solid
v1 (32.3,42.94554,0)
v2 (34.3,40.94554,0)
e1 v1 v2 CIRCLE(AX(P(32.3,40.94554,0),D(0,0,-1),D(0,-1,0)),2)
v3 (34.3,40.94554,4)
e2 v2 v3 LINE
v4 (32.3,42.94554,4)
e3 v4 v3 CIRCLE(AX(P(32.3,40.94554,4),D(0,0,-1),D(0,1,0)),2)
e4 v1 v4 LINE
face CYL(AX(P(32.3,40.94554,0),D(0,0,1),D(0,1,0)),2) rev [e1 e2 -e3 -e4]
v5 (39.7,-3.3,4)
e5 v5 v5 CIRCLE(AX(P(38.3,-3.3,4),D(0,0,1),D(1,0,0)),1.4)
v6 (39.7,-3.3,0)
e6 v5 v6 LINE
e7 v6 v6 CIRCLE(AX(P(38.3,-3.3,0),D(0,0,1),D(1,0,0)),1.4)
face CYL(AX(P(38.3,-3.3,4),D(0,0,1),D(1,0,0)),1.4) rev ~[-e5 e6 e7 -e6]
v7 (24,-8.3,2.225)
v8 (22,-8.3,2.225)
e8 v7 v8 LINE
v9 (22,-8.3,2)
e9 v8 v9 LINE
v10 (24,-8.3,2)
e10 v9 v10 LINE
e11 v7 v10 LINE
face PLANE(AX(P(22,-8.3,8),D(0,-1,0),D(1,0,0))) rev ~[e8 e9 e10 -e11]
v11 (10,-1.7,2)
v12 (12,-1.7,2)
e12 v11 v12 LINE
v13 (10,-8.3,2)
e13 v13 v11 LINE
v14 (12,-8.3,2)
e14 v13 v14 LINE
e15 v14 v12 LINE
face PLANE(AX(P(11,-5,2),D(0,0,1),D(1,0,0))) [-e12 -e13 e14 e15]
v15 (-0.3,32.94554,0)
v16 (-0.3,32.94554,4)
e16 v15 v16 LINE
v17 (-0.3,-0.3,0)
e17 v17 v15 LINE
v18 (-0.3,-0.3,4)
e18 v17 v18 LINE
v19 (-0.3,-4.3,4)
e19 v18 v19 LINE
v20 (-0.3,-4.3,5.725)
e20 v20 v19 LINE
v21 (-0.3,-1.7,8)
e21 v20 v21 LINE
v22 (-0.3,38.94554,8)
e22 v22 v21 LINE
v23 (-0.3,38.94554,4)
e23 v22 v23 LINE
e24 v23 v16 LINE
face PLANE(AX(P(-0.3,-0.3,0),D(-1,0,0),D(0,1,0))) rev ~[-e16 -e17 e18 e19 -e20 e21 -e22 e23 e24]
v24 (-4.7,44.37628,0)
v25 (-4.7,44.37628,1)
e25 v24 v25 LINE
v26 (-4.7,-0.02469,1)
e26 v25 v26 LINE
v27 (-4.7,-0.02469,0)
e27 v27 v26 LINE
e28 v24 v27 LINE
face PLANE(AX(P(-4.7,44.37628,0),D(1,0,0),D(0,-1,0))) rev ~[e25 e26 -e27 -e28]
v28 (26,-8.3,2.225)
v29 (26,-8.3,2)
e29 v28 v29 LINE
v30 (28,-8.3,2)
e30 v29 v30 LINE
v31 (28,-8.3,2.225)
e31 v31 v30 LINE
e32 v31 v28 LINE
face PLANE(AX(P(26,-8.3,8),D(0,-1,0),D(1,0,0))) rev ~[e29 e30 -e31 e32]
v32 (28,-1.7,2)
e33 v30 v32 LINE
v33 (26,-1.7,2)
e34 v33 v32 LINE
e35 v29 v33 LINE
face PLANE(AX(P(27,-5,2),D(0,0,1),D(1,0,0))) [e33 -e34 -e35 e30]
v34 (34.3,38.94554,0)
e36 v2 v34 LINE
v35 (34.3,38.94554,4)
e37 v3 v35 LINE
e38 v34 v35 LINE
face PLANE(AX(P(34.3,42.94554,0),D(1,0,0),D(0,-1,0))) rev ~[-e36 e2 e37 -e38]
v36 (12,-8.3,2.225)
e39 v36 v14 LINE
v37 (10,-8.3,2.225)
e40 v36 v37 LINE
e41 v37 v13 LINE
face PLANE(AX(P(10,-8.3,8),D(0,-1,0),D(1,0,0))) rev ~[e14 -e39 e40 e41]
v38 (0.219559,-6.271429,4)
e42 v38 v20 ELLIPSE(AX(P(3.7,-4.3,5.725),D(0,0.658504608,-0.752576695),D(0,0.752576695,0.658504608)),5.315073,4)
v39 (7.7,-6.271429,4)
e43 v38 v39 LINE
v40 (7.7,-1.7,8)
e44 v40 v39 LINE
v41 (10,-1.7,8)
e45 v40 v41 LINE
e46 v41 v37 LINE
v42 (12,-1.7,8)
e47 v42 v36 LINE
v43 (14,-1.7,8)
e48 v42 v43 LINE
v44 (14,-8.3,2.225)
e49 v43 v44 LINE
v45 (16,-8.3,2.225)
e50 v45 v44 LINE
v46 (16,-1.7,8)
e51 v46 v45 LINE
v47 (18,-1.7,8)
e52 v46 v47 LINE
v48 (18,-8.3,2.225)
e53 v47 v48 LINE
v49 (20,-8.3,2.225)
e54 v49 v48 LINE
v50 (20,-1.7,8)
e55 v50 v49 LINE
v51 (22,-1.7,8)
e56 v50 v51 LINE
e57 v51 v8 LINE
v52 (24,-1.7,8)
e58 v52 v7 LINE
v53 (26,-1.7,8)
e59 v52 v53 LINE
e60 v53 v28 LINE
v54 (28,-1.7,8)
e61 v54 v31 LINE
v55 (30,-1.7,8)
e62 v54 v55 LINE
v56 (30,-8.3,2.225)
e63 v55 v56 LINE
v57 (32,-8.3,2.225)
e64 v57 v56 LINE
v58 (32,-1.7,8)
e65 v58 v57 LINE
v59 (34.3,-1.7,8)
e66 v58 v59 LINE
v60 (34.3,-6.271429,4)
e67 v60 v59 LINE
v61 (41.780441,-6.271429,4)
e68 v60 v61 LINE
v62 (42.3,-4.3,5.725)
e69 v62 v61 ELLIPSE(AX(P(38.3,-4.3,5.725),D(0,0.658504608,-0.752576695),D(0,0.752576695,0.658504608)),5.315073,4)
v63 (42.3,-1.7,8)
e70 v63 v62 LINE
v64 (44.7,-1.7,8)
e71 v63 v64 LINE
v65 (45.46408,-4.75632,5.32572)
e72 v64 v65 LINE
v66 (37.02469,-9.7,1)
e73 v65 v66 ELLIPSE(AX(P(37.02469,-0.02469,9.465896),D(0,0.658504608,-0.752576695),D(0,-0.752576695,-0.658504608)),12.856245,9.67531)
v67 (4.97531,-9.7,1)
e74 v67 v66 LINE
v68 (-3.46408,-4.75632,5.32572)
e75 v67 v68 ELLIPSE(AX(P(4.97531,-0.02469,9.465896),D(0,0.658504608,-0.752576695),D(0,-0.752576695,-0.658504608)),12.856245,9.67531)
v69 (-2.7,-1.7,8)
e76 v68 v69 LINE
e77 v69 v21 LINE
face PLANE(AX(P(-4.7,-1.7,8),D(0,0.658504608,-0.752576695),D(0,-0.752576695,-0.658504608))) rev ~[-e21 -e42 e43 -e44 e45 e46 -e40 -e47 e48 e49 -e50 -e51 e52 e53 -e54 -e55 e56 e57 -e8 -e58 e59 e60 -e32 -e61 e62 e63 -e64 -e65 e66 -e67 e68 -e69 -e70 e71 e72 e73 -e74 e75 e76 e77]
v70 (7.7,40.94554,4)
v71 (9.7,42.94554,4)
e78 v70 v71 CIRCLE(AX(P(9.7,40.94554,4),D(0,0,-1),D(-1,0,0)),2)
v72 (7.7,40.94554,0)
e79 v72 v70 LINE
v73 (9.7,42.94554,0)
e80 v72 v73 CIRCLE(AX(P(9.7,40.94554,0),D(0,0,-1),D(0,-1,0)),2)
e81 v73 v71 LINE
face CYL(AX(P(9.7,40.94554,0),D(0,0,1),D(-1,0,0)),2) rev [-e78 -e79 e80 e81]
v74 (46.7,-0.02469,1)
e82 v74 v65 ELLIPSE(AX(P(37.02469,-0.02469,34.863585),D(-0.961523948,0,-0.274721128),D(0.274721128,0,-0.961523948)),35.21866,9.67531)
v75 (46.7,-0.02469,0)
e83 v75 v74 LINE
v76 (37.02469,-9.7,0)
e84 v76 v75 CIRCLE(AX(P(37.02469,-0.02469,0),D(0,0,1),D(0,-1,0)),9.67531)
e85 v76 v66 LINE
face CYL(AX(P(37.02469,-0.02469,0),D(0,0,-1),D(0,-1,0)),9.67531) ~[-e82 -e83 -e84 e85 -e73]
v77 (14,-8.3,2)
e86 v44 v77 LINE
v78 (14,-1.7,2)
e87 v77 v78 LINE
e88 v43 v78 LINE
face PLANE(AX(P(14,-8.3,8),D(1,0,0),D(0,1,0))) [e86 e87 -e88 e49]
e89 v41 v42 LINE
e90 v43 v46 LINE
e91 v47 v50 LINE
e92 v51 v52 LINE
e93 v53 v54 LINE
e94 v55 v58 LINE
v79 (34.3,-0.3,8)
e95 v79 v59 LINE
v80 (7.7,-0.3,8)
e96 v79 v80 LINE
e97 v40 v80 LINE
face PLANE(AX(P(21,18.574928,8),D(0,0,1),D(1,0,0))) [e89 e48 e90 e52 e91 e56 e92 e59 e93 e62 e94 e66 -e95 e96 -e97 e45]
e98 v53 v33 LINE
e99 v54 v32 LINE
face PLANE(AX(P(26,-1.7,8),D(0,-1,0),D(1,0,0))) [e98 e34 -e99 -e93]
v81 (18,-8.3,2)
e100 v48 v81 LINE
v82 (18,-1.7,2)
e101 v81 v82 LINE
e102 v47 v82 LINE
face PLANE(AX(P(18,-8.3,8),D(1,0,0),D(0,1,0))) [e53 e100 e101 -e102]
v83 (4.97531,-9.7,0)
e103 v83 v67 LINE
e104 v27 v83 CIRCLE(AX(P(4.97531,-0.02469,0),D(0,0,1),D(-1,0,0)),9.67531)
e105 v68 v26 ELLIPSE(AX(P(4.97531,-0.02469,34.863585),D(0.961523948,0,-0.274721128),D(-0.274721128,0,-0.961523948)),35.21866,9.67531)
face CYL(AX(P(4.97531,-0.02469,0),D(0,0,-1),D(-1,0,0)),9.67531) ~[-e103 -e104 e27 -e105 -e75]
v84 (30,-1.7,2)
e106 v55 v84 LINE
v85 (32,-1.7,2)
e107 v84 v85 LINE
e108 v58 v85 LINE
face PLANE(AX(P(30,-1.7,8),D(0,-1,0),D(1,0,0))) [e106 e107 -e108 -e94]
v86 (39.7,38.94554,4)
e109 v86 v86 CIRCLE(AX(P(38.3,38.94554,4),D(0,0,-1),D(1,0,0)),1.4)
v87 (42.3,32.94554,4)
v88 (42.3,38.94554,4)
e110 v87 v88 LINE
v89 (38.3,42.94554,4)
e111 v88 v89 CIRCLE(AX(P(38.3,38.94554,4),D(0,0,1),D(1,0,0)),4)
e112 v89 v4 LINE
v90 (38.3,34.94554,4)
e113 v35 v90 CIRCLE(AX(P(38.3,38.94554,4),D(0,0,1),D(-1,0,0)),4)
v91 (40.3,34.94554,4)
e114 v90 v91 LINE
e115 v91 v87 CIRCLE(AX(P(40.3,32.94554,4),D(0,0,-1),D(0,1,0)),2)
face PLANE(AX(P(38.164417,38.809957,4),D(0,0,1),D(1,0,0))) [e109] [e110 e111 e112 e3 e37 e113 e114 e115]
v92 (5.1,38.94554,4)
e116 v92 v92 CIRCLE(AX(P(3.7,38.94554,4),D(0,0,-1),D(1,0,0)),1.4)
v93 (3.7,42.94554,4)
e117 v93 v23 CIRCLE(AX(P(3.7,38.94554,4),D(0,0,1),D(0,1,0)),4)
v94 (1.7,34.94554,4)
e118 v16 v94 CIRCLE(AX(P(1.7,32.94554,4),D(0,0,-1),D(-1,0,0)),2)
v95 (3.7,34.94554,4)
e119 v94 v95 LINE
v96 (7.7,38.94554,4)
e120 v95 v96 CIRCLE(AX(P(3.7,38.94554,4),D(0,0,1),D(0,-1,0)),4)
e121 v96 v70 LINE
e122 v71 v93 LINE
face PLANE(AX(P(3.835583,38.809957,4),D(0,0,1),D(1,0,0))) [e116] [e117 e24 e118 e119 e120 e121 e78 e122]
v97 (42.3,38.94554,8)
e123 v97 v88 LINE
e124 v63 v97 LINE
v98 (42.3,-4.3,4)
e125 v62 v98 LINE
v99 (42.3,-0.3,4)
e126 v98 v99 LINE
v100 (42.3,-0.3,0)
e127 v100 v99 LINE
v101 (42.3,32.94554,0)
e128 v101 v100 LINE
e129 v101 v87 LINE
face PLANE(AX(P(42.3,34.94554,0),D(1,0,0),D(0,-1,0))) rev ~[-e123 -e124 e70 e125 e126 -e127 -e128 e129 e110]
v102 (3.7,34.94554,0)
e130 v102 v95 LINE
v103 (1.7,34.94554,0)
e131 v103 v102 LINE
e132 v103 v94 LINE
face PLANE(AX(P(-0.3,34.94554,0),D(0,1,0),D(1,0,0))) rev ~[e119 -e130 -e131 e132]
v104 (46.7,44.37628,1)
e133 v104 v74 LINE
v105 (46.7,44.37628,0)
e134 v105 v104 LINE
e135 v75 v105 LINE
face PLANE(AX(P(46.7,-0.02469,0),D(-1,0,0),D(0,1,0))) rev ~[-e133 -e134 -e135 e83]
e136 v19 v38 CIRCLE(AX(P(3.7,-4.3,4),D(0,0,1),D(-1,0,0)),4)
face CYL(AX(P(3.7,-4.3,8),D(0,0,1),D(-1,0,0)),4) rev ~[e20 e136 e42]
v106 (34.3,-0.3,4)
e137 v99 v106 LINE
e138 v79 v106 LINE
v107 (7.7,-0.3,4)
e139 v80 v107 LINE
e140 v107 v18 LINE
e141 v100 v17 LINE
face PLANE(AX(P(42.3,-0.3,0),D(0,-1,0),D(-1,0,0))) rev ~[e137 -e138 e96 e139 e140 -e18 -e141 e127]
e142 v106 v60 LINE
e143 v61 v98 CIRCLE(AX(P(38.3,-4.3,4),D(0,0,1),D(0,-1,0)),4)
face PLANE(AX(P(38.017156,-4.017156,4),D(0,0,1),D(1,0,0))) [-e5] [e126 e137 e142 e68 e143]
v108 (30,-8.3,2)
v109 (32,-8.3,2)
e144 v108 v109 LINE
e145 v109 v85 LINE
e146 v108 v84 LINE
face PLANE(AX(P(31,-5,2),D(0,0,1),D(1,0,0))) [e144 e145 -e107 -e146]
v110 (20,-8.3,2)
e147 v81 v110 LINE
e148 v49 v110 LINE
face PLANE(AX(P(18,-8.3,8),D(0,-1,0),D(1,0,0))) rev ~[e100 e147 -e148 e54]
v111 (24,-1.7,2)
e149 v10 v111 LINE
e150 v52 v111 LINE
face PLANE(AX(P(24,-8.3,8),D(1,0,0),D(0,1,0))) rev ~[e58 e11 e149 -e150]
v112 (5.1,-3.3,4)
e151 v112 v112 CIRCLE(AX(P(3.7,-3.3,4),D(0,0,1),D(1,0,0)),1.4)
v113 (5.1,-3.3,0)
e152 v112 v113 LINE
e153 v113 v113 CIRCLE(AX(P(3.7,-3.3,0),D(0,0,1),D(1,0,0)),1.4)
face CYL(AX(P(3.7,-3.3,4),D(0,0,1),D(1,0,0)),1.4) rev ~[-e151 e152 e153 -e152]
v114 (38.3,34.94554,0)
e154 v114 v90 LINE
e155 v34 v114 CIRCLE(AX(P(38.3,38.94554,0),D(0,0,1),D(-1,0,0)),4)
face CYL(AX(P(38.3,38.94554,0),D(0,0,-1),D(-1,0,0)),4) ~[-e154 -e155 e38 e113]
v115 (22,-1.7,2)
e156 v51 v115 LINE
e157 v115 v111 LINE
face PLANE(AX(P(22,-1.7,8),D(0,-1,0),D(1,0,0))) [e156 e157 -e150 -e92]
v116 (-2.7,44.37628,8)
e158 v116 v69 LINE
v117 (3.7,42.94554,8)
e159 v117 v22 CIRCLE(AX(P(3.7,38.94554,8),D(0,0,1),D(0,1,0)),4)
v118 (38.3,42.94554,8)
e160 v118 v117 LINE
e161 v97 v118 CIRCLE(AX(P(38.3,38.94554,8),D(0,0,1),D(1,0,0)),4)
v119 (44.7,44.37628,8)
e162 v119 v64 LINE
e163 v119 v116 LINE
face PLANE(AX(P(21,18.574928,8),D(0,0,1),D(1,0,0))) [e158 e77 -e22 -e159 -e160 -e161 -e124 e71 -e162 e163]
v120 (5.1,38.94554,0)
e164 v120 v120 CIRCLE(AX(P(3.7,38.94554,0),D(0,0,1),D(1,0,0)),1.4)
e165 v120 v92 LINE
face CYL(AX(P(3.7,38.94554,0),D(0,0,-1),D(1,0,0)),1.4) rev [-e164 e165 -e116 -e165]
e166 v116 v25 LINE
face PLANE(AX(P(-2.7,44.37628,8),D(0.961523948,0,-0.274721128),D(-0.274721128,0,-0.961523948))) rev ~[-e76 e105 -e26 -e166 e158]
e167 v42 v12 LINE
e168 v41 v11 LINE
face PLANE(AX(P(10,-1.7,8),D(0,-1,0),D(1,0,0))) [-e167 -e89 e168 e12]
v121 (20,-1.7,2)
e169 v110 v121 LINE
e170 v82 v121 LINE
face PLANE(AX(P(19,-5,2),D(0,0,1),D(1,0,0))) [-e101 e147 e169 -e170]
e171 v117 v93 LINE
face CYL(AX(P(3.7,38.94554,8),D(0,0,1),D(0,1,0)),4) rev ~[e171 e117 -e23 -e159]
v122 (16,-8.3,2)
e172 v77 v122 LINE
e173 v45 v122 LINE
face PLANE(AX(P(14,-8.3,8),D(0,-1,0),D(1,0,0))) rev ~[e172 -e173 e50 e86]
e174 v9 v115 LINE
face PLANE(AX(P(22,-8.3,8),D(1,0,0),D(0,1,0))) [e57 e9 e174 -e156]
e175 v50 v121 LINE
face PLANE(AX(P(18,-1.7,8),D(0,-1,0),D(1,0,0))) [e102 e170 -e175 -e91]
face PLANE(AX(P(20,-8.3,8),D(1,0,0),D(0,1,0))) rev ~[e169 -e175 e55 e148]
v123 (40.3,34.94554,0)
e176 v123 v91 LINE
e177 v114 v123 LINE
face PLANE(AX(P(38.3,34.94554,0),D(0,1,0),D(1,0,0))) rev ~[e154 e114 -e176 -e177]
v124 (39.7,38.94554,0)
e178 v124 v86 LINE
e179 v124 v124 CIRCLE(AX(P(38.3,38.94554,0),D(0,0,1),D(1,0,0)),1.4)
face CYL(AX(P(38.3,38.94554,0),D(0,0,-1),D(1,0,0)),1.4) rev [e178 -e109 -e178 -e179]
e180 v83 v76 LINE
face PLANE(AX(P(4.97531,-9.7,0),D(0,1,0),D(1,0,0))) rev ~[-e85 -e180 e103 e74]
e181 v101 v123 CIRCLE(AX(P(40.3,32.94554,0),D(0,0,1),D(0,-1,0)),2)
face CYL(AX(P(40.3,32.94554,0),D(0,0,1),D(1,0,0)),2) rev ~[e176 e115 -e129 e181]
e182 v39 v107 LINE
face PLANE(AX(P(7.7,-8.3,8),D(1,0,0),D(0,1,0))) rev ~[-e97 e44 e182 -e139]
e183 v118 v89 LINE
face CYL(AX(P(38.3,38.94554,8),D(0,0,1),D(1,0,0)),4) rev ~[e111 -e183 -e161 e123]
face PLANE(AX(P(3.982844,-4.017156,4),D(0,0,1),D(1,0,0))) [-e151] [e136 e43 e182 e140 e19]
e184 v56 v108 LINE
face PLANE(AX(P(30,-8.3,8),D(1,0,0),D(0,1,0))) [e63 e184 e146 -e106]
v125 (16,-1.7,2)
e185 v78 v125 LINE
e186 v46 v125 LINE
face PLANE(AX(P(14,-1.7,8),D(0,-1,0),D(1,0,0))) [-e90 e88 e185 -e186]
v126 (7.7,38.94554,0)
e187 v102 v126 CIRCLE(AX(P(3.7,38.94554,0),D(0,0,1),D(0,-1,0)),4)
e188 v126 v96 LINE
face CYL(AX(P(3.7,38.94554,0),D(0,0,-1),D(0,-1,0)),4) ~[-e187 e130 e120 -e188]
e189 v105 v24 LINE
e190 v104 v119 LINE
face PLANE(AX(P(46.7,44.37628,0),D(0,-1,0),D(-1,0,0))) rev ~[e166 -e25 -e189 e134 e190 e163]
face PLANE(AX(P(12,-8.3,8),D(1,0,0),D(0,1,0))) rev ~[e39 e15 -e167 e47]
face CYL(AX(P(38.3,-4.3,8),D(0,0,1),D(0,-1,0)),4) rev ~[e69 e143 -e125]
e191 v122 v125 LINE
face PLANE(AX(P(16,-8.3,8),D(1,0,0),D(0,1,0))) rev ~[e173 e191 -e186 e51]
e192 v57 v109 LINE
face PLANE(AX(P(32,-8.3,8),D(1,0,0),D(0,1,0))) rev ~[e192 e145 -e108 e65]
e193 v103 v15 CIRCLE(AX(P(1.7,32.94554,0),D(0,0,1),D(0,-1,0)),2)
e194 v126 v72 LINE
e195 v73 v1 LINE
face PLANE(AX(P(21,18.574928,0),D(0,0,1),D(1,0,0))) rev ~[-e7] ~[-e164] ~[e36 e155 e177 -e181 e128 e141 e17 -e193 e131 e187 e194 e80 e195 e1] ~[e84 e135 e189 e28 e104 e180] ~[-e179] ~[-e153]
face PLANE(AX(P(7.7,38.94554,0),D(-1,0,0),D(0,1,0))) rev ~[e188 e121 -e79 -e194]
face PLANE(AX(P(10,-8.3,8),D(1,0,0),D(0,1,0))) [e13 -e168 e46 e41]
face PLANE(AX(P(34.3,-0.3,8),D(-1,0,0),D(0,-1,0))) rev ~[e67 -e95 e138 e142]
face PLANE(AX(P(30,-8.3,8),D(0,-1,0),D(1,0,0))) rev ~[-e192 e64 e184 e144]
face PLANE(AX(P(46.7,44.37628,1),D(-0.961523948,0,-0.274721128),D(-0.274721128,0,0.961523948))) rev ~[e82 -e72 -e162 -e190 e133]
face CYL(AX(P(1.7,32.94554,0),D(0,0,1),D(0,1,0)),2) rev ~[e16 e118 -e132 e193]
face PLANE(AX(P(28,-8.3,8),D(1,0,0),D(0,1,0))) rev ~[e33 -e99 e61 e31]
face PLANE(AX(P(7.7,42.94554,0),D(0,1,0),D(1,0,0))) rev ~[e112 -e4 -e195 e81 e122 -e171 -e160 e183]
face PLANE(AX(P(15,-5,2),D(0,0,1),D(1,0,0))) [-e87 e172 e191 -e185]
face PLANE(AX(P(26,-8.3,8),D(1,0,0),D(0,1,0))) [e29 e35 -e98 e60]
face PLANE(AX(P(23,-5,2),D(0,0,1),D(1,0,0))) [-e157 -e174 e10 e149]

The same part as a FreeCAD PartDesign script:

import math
import FreeCAD as App
import Part
import Sketcher
Q = App.Units.Quantity


def edges_at(feature, points):
    """Names of the edges that pass closest to the given points."""
    edges = feature.Shape.Edges
    near = lambda p: min(range(len(edges)), key=lambda i: edges[i].distToShape(Part.Vertex(*p))[0])
    return sorted({f"Edge{near(p) + 1}" for p in points})


def add_polygon(sketch, points):
    """Adds a closed chain of lines whose ends are joined by coincident constraints."""
    first, n = sketch.GeometryCount, len(points)
    for a, b in zip(points, points[1:] + points[:1]):
        sketch.addGeometry(Part.LineSegment(App.Vector(*a, 0), App.Vector(*b, 0)), False)
    for i in range(n):
        sketch.addConstraint(Sketcher.Constraint("Coincident", first + i, 2, first + (i + 1) % n, 1))

doc = App.newDocument("Part")
body = doc.addObject("PartDesign::Body", "Body")

# Sketch on XY plane
sketch1 = doc.addObject("Sketcher::SketchObject", "Sketch")
body.addObject(sketch1)
sketch1.AttachmentSupport = (doc.XY_Plane, [""])
sketch1.MapMode = "FlatFace"
sketch1.addGeometry(Part.LineSegment(App.Vector(46.7, 44.37628, 0), App.Vector(-4.7, 44.37628, 0)), False)
sketch1.addGeometry(Part.LineSegment(App.Vector(-4.7, 44.37628, 0), App.Vector(-4.7, -0.02469, 0)), False)
sketch1.addGeometry(Part.ArcOfCircle(Part.Circle(App.Vector(4.97531, -0.02469, 0), App.Vector(0, 0, 1), 9.67531), math.radians(180), math.radians(270)), False)
sketch1.addGeometry(Part.LineSegment(App.Vector(4.97531, -9.7, 0), App.Vector(37.02469, -9.7, 0)), False)
sketch1.addGeometry(Part.ArcOfCircle(Part.Circle(App.Vector(37.02469, -0.02469, 0), App.Vector(0, 0, 1), 9.67531), math.radians(-90), math.radians(0)), False)
sketch1.addGeometry(Part.LineSegment(App.Vector(46.7, -0.02469, 0), App.Vector(46.7, 44.37628, 0)), False)
sketch1.addGeometry(Part.Circle(App.Vector(3.7, 38.94554, 0), App.Vector(0, 0, 1), 1.4), False)
sketch1.addGeometry(Part.ArcOfCircle(Part.Circle(App.Vector(3.7, 38.94554, 0), App.Vector(0, 0, 1), 4), math.radians(-90), math.radians(0)), False)
sketch1.addGeometry(Part.LineSegment(App.Vector(7.7, 38.94554, 0), App.Vector(7.7, 42.94554, 0)), False)
sketch1.addGeometry(Part.LineSegment(App.Vector(7.7, 42.94554, 0), App.Vector(34.3, 42.94554, 0)), False)
sketch1.addGeometry(Part.LineSegment(App.Vector(34.3, 42.94554, 0), App.Vector(34.3, 38.94554, 0)), False)
sketch1.addGeometry(Part.ArcOfCircle(Part.Circle(App.Vector(38.3, 38.94554, 0), App.Vector(0, 0, 1), 4), math.radians(180), math.radians(270)), False)
sketch1.addGeometry(Part.LineSegment(App.Vector(38.3, 34.94554, 0), App.Vector(42.3, 34.94554, 0)), False)
sketch1.addGeometry(Part.LineSegment(App.Vector(42.3, 34.94554, 0), App.Vector(42.3, -0.3, 0)), False)
sketch1.addGeometry(Part.LineSegment(App.Vector(42.3, -0.3, 0), App.Vector(-0.3, -0.3, 0)), False)
sketch1.addGeometry(Part.LineSegment(App.Vector(-0.3, -0.3, 0), App.Vector(-0.3, 34.94554, 0)), False)
sketch1.addGeometry(Part.LineSegment(App.Vector(-0.3, 34.94554, 0), App.Vector(3.7, 34.94554, 0)), False)
sketch1.addGeometry(Part.Circle(App.Vector(38.3, 38.94554, 0), App.Vector(0, 0, 1), 1.4), False)
sketch1.addConstraint(Sketcher.Constraint("Coincident", 0, 2, 1, 1))
sketch1.addConstraint(Sketcher.Constraint("Tangent", 1, 2, 2, 1))
sketch1.addConstraint(Sketcher.Constraint("Tangent", 2, 2, 3, 1))
sketch1.addConstraint(Sketcher.Constraint("Tangent", 3, 2, 4, 1))
sketch1.addConstraint(Sketcher.Constraint("Tangent", 4, 2, 5, 1))
sketch1.addConstraint(Sketcher.Constraint("Coincident", 5, 2, 0, 1))
sketch1.addConstraint(Sketcher.Constraint("Tangent", 7, 2, 8, 1))
sketch1.addConstraint(Sketcher.Constraint("Coincident", 8, 2, 9, 1))
sketch1.addConstraint(Sketcher.Constraint("Coincident", 9, 2, 10, 1))
sketch1.addConstraint(Sketcher.Constraint("Tangent", 10, 2, 11, 1))
sketch1.addConstraint(Sketcher.Constraint("Tangent", 11, 2, 12, 1))
sketch1.addConstraint(Sketcher.Constraint("Coincident", 12, 2, 13, 1))
sketch1.addConstraint(Sketcher.Constraint("Coincident", 13, 2, 14, 1))
sketch1.addConstraint(Sketcher.Constraint("Coincident", 14, 2, 15, 1))
sketch1.addConstraint(Sketcher.Constraint("Coincident", 15, 2, 16, 1))
sketch1.addConstraint(Sketcher.Constraint("Tangent", 16, 2, 7, 1))
sketch1.addConstraint(Sketcher.Constraint("Horizontal", 0))
sketch1.addConstraint(Sketcher.Constraint("Vertical", 1))
sketch1.addConstraint(Sketcher.Constraint("Horizontal", 3))
sketch1.addConstraint(Sketcher.Constraint("Vertical", 5))
sketch1.addConstraint(Sketcher.Constraint("Vertical", 8))
sketch1.addConstraint(Sketcher.Constraint("Horizontal", 9))
sketch1.addConstraint(Sketcher.Constraint("Vertical", 10))
sketch1.addConstraint(Sketcher.Constraint("Horizontal", 12))
sketch1.addConstraint(Sketcher.Constraint("Vertical", 13))
sketch1.addConstraint(Sketcher.Constraint("Horizontal", 14))
sketch1.addConstraint(Sketcher.Constraint("Vertical", 15))
sketch1.addConstraint(Sketcher.Constraint("Horizontal", 16))
sketch1.addConstraint(Sketcher.Constraint("Coincident", 7, 3, 6, 3))
sketch1.addConstraint(Sketcher.Constraint("Coincident", 17, 3, 11, 3))
sketch1.addConstraint(Sketcher.Constraint("Equal", 2, 4))
sketch1.addConstraint(Sketcher.Constraint("Equal", 7, 11))
sketch1.addConstraint(Sketcher.Constraint("Equal", 6, 17))
sketch1.addConstraint(Sketcher.Constraint("Horizontal", 7, 3, 11, 3))
sketch1.addConstraint(Sketcher.Constraint("Equal", 12, 16))
sketch1.addConstraint(Sketcher.Constraint("Equal", 16, 8))
sketch1.addConstraint(Sketcher.Constraint("Radius", 7, Q("4 mm")))
sketch1.addConstraint(Sketcher.Constraint("Diameter", 6, Q("2.8 mm")))
sketch1.addConstraint(Sketcher.Constraint("DistanceX", 12, 1, 12, 2, Q("4 mm")))
sketch1.addConstraint(Sketcher.Constraint("DistanceX", 0, 2, 0, 1, Q("51.4 mm")))
sketch1.addConstraint(Sketcher.Constraint("DistanceX", 9, 1, 9, 2, Q("26.6 mm")))
sketch1.addConstraint(Sketcher.Constraint("DistanceX", 0, 2, 11, 3, Q("43 mm")))
sketch1.addConstraint(Sketcher.Constraint("DistanceX", -1, 1, 6, 3, Q("3.7 mm")))
sketch1.addConstraint(Sketcher.Constraint("DistanceY", 2, 2, -1, 1, Q("9.7 mm")))
sketch1.addConstraint(Sketcher.Constraint("DistanceY", 13, 2, -1, 1, Q("0.3 mm")))
sketch1.addConstraint(Sketcher.Constraint("Radius", 2, Q("9.67531 mm")))
sketch1.addConstraint(Sketcher.Constraint("DistanceY", 1, 2, 1, 1, Q("44.40097 mm")))
sketch1.addConstraint(Sketcher.Constraint("DistanceY", 13, 2, 13, 1, Q("35.24554 mm")))
pad1 = doc.addObject("PartDesign::Pad", "Pad")
body.addObject(pad1)
pad1.Profile = sketch1
pad1.Length = 8

# Sketch on XZ plane
sketch2 = doc.addObject("Sketcher::SketchObject", "Sketch001")
body.addObject(sketch2)
sketch2.AttachmentSupport = (doc.XZ_Plane, [""])
sketch2.MapMode = "FlatFace"
sketch2.AttachmentOffset = App.Placement(App.Vector(0, 0, -44.37628), App.Rotation())
add_polygon(sketch2, [(-4.7, 1), (-4.7, 8), (-2.7, 8)])  # lines 0-2
add_polygon(sketch2, [(44.7, 8), (46.7, 8), (46.7, 1)])  # lines 3-5
sketch2.addConstraint(Sketcher.Constraint("Vertical", 0))
sketch2.addConstraint(Sketcher.Constraint("Horizontal", 1))
sketch2.addConstraint(Sketcher.Constraint("Horizontal", 3))
sketch2.addConstraint(Sketcher.Constraint("Vertical", 4))
sketch2.addConstraint(Sketcher.Constraint("Horizontal", 1, 2, 3, 2))
sketch2.addConstraint(Sketcher.Constraint("Horizontal", 2, 2, 4, 2))
sketch2.addConstraint(Sketcher.Constraint("Equal", 1, 3))
sketch2.addConstraint(Sketcher.Constraint("DistanceX", 1, 1, 1, 2, Q("2 mm")))
sketch2.addConstraint(Sketcher.Constraint("DistanceY", 0, 1, 0, 2, Q("7 mm")))
sketch2.addConstraint(Sketcher.Constraint("DistanceY", -1, 1, 0, 2, Q("8 mm")))
sketch2.addConstraint(Sketcher.Constraint("DistanceX", 0, 2, -1, 1, Q("4.7 mm")))
sketch2.addConstraint(Sketcher.Constraint("DistanceX", -1, 1, 3, 2, Q("46.7 mm")))
pocket1 = doc.addObject("PartDesign::Pocket", "Pocket")
body.addObject(pocket1)
pocket1.Profile = sketch2
pocket1.Type = "ThroughAll"
pocket1.Reversed = True

# Sketch on YZ plane
sketch3 = doc.addObject("Sketcher::SketchObject", "Sketch002")
body.addObject(sketch3)
sketch3.AttachmentSupport = (doc.YZ_Plane, [""])
sketch3.MapMode = "FlatFace"
sketch3.AttachmentOffset = App.Placement(App.Vector(0, 0, -4.7), App.Rotation())
add_polygon(sketch3, [(-9.7, 8), (-1.7, 8), (-9.7, 1)])  # lines 0-2
sketch3.addConstraint(Sketcher.Constraint("Horizontal", 0))
sketch3.addConstraint(Sketcher.Constraint("Vertical", 2))
sketch3.addConstraint(Sketcher.Constraint("DistanceX", 0, 1, 0, 2, Q("8 mm")))
sketch3.addConstraint(Sketcher.Constraint("DistanceY", 2, 1, 2, 2, Q("7 mm")))
sketch3.addConstraint(Sketcher.Constraint("DistanceY", -1, 1, 0, 2, Q("8 mm")))
sketch3.addConstraint(Sketcher.Constraint("DistanceX", 0, 2, -1, 1, Q("1.7 mm")))
pocket2 = doc.addObject("PartDesign::Pocket", "Pocket001")
body.addObject(pocket2)
pocket2.Profile = sketch3
pocket2.Type = "ThroughAll"
pocket2.Reversed = True
doc.recompute()

fillet = doc.addObject("PartDesign::Fillet", "Fillet")
body.addObject(fillet)
fillet.Base = (pocket2, edges_at(pocket2, [
    (7.7, 42.946, 4),
    (34.3, 42.946, 4),
    (42.3, 34.946, 4),
    (-0.3, 34.946, 4),
]))
fillet.Radius = 2

# Sketch on XY plane
sketch4 = doc.addObject("Sketcher::SketchObject", "Sketch003")
body.addObject(sketch4)
sketch4.AttachmentSupport = (doc.XY_Plane, [""])
sketch4.MapMode = "FlatFace"
sketch4.AttachmentOffset = App.Placement(App.Vector(0, 0, 8), App.Rotation())
sketch4.addGeometry(Part.LineSegment(App.Vector(9.7, 42.94554, 0), App.Vector(3.7, 42.94554, 0)), False)
sketch4.addGeometry(Part.ArcOfCircle(Part.Circle(App.Vector(3.7, 38.94554, 0), App.Vector(0, 0, 1), 4), math.radians(90), math.radians(180)), False)
sketch4.addGeometry(Part.LineSegment(App.Vector(-0.3, 38.94554, 0), App.Vector(-0.3, 32.94554, 0)), False)
sketch4.addGeometry(Part.ArcOfCircle(Part.Circle(App.Vector(1.7, 32.94554, 0), App.Vector(0, 0, 1), 2), math.radians(90), math.radians(180)), False)
sketch4.addGeometry(Part.LineSegment(App.Vector(1.7, 34.94554, 0), App.Vector(3.7, 34.94554, 0)), False)
sketch4.addGeometry(Part.ArcOfCircle(Part.Circle(App.Vector(3.7, 38.94554, 0), App.Vector(0, 0, 1), 4), math.radians(-90), math.radians(0)), False)
sketch4.addGeometry(Part.LineSegment(App.Vector(7.7, 38.94554, 0), App.Vector(7.7, 40.94554, 0)), False)
sketch4.addGeometry(Part.ArcOfCircle(Part.Circle(App.Vector(9.7, 40.94554, 0), App.Vector(0, 0, 1), 2), math.radians(90), math.radians(180)), False)
sketch4.addGeometry(Part.LineSegment(App.Vector(38.3, 42.94554, 0), App.Vector(32.3, 42.94554, 0)), False)
sketch4.addGeometry(Part.ArcOfCircle(Part.Circle(App.Vector(32.3, 40.94554, 0), App.Vector(0, 0, 1), 2), math.radians(0), math.radians(90)), False)
sketch4.addGeometry(Part.LineSegment(App.Vector(34.3, 40.94554, 0), App.Vector(34.3, 38.94554, 0)), False)
sketch4.addGeometry(Part.ArcOfCircle(Part.Circle(App.Vector(38.3, 38.94554, 0), App.Vector(0, 0, 1), 4), math.radians(180), math.radians(270)), False)
sketch4.addGeometry(Part.LineSegment(App.Vector(38.3, 34.94554, 0), App.Vector(40.3, 34.94554, 0)), False)
sketch4.addGeometry(Part.ArcOfCircle(Part.Circle(App.Vector(40.3, 32.94554, 0), App.Vector(0, 0, 1), 2), math.radians(0), math.radians(90)), False)
sketch4.addGeometry(Part.LineSegment(App.Vector(42.3, 32.94554, 0), App.Vector(42.3, 38.94554, 0)), False)
sketch4.addGeometry(Part.ArcOfCircle(Part.Circle(App.Vector(38.3, 38.94554, 0), App.Vector(0, 0, 1), 4), math.radians(0), math.radians(90)), False)
sketch4.addGeometry(Part.LineSegment(App.Vector(7.7, -0.3, 0), App.Vector(-0.3, -0.3, 0)), False)
sketch4.addGeometry(Part.LineSegment(App.Vector(-0.3, -0.3, 0), App.Vector(-0.3, -4.3, 0)), False)
sketch4.addGeometry(Part.ArcOfCircle(Part.Circle(App.Vector(3.7, -4.3, 0), App.Vector(0, 0, 1), 4), math.radians(180), math.radians(270)), False)
sketch4.addGeometry(Part.LineSegment(App.Vector(3.7, -8.3, 0), App.Vector(7.7, -8.3, 0)), False)
sketch4.addGeometry(Part.LineSegment(App.Vector(7.7, -8.3, 0), App.Vector(7.7, -0.3, 0)), False)
sketch4.addGeometry(Part.LineSegment(App.Vector(42.3, -4.3, 0), App.Vector(42.3, -0.3, 0)), False)
sketch4.addGeometry(Part.LineSegment(App.Vector(42.3, -0.3, 0), App.Vector(34.3, -0.3, 0)), False)
sketch4.addGeometry(Part.LineSegment(App.Vector(34.3, -0.3, 0), App.Vector(34.3, -8.3, 0)), False)
sketch4.addGeometry(Part.LineSegment(App.Vector(34.3, -8.3, 0), App.Vector(38.3, -8.3, 0)), False)
sketch4.addGeometry(Part.ArcOfCircle(Part.Circle(App.Vector(38.3, -4.3, 0), App.Vector(0, 0, 1), 4), math.radians(-90), math.radians(0)), False)
sketch4.addConstraint(Sketcher.Constraint("Tangent", 0, 2, 1, 1))
sketch4.addConstraint(Sketcher.Constraint("Tangent", 1, 2, 2, 1))
sketch4.addConstraint(Sketcher.Constraint("Tangent", 2, 2, 3, 2))
sketch4.addConstraint(Sketcher.Constraint("Tangent", 3, 1, 4, 1))
sketch4.addConstraint(Sketcher.Constraint("Tangent", 4, 2, 5, 1))
sketch4.addConstraint(Sketcher.Constraint("Tangent", 5, 2, 6, 1))
sketch4.addConstraint(Sketcher.Constraint("Tangent", 6, 2, 7, 2))
sketch4.addConstraint(Sketcher.Constraint("Tangent", 7, 1, 0, 1))
sketch4.addConstraint(Sketcher.Constraint("Tangent", 8, 2, 9, 2))
sketch4.addConstraint(Sketcher.Constraint("Tangent", 9, 1, 10, 1))
sketch4.addConstraint(Sketcher.Constraint("Tangent", 10, 2, 11, 1))
sketch4.addConstraint(Sketcher.Constraint("Tangent", 11, 2, 12, 1))
sketch4.addConstraint(Sketcher.Constraint("Tangent", 12, 2, 13, 2))
sketch4.addConstraint(Sketcher.Constraint("Tangent", 13, 1, 14, 1))
sketch4.addConstraint(Sketcher.Constraint("Tangent", 14, 2, 15, 1))
sketch4.addConstraint(Sketcher.Constraint("Tangent", 15, 2, 8, 1))
sketch4.addConstraint(Sketcher.Constraint("Coincident", 16, 2, 17, 1))
sketch4.addConstraint(Sketcher.Constraint("Tangent", 17, 2, 18, 1))
sketch4.addConstraint(Sketcher.Constraint("Tangent", 18, 2, 19, 1))
sketch4.addConstraint(Sketcher.Constraint("Coincident", 19, 2, 20, 1))
sketch4.addConstraint(Sketcher.Constraint("Coincident", 20, 2, 16, 1))
sketch4.addConstraint(Sketcher.Constraint("Coincident", 21, 2, 22, 1))
sketch4.addConstraint(Sketcher.Constraint("Coincident", 22, 2, 23, 1))
sketch4.addConstraint(Sketcher.Constraint("Coincident", 23, 2, 24, 1))
sketch4.addConstraint(Sketcher.Constraint("Tangent", 24, 2, 25, 1))
sketch4.addConstraint(Sketcher.Constraint("Tangent", 25, 2, 21, 1))
sketch4.addConstraint(Sketcher.Constraint("Horizontal", 0))
sketch4.addConstraint(Sketcher.Constraint("Vertical", 2))
sketch4.addConstraint(Sketcher.Constraint("Horizontal", 4))
sketch4.addConstraint(Sketcher.Constraint("Vertical", 6))
sketch4.addConstraint(Sketcher.Constraint("Horizontal", 8))
sketch4.addConstraint(Sketcher.Constraint("Vertical", 10))
sketch4.addConstraint(Sketcher.Constraint("Horizontal", 12))
sketch4.addConstraint(Sketcher.Constraint("Vertical", 14))
sketch4.addConstraint(Sketcher.Constraint("Horizontal", 16))
sketch4.addConstraint(Sketcher.Constraint("Vertical", 17))
sketch4.addConstraint(Sketcher.Constraint("Horizontal", 19))
sketch4.addConstraint(Sketcher.Constraint("Vertical", 20))
sketch4.addConstraint(Sketcher.Constraint("Vertical", 21))
sketch4.addConstraint(Sketcher.Constraint("Horizontal", 22))
sketch4.addConstraint(Sketcher.Constraint("Vertical", 23))
sketch4.addConstraint(Sketcher.Constraint("Horizontal", 24))
sketch4.addConstraint(Sketcher.Constraint("Coincident", 5, 3, 1, 3))
sketch4.addConstraint(Sketcher.Constraint("Coincident", 15, 3, 11, 3))
sketch4.addConstraint(Sketcher.Constraint("Equal", 1, 5))
sketch4.addConstraint(Sketcher.Constraint("Equal", 3, 7))
sketch4.addConstraint(Sketcher.Constraint("Equal", 7, 9))
sketch4.addConstraint(Sketcher.Constraint("Equal", 5, 11))
sketch4.addConstraint(Sketcher.Constraint("Equal", 9, 13))
sketch4.addConstraint(Sketcher.Constraint("Equal", 11, 15))
sketch4.addConstraint(Sketcher.Constraint("Equal", 15, 18))
sketch4.addConstraint(Sketcher.Constraint("Equal", 18, 25))
sketch4.addConstraint(Sketcher.Constraint("Horizontal", 7, 3, 9, 3))
sketch4.addConstraint(Sketcher.Constraint("Horizontal", 18, 3, 25, 3))
sketch4.addConstraint(Sketcher.Constraint("Horizontal", 20, 2, 21, 2))
sketch4.addConstraint(Sketcher.Constraint("Vertical", 5, 3, 18, 3))
sketch4.addConstraint(Sketcher.Constraint("Vertical", 15, 3, 25, 3))
sketch4.addConstraint(Sketcher.Constraint("Vertical", 6, 2, 19, 2))
sketch4.addConstraint(Sketcher.Constraint("Vertical", 10, 2, 22, 2))
sketch4.addConstraint(Sketcher.Constraint("Equal", 24, 17))
sketch4.addConstraint(Sketcher.Constraint("Radius", 1, Q("4 mm")))
sketch4.addConstraint(Sketcher.Constraint("Radius", 3, Q("2 mm")))
sketch4.addConstraint(Sketcher.Constraint("DistanceX", -1, 1, 1, 3, Q("3.7 mm")))
sketch4.addConstraint(Sketcher.Constraint("DistanceX", -1, 1, 9, 3, Q("32.3 mm")))
sketch4.addConstraint(Sketcher.Constraint("DistanceY", 18, 3, -1, 1, Q("4.3 mm")))
sketch4.addConstraint(Sketcher.Constraint("DistanceY", -1, 1, 1, 3, Q("38.94554 mm")))
pocket3 = doc.addObject("PartDesign::Pocket", "Pocket002")
body.addObject(pocket3)
pocket3.Profile = sketch4
pocket3.Length = 4

# Sketch on XY plane
sketch5 = doc.addObject("Sketcher::SketchObject", "Sketch004")
body.addObject(sketch5)
sketch5.AttachmentSupport = (doc.XY_Plane, [""])
sketch5.MapMode = "FlatFace"
sketch5.AttachmentOffset = App.Placement(App.Vector(0, 0, 4), App.Rotation())
sketch5.addGeometry(Part.Circle(App.Vector(3.7, -3.3, 0), App.Vector(0, 0, 1), 1.4), False)
sketch5.addGeometry(Part.Circle(App.Vector(38.3, -3.3, 0), App.Vector(0, 0, 1), 1.4), False)
sketch5.addConstraint(Sketcher.Constraint("Equal", 0, 1))
sketch5.addConstraint(Sketcher.Constraint("Horizontal", 0, 3, 1, 3))
sketch5.addConstraint(Sketcher.Constraint("Diameter", 0, Q("2.8 mm")))
sketch5.addConstraint(Sketcher.Constraint("DistanceX", -1, 1, 0, 3, Q("3.7 mm")))
sketch5.addConstraint(Sketcher.Constraint("DistanceY", 0, 3, -1, 1, Q("3.3 mm")))
sketch5.addConstraint(Sketcher.Constraint("DistanceX", -1, 1, 1, 3, Q("38.3 mm")))
pocket4 = doc.addObject("PartDesign::Pocket", "Pocket003")
body.addObject(pocket4)
pocket4.Profile = sketch5
pocket4.Type = "ThroughAll"

# Sketch on XY plane
sketch6 = doc.addObject("Sketcher::SketchObject", "Sketch005")
body.addObject(sketch6)
sketch6.AttachmentSupport = (doc.XY_Plane, [""])
sketch6.MapMode = "FlatFace"
sketch6.AttachmentOffset = App.Placement(App.Vector(0, 0, 8), App.Rotation())
add_polygon(sketch6, [(10, -1.7), (10, -8.3), (12, -8.3), (12, -1.7)])  # lines 0-3
add_polygon(sketch6, [(14, -1.7), (14, -8.3), (16, -8.3), (16, -1.7)])  # lines 4-7
add_polygon(sketch6, [(18, -1.7), (18, -8.3), (20, -8.3), (20, -1.7)])  # lines 8-11
add_polygon(sketch6, [(30, -1.7), (30, -8.3), (32, -8.3), (32, -1.7)])  # lines 12-15
add_polygon(sketch6, [(26, -1.7), (26, -8.3), (28, -8.3), (28, -1.7)])  # lines 16-19
add_polygon(sketch6, [(22, -1.7), (22, -8.3), (24, -8.3), (24, -1.7)])  # lines 20-23
sketch6.addConstraint(Sketcher.Constraint("Vertical", 0))
sketch6.addConstraint(Sketcher.Constraint("Horizontal", 1))
sketch6.addConstraint(Sketcher.Constraint("Vertical", 2))
sketch6.addConstraint(Sketcher.Constraint("Horizontal", 3))
sketch6.addConstraint(Sketcher.Constraint("Vertical", 4))
sketch6.addConstraint(Sketcher.Constraint("Horizontal", 5))
sketch6.addConstraint(Sketcher.Constraint("Vertical", 6))
sketch6.addConstraint(Sketcher.Constraint("Horizontal", 7))
sketch6.addConstraint(Sketcher.Constraint("Vertical", 8))
sketch6.addConstraint(Sketcher.Constraint("Horizontal", 9))
sketch6.addConstraint(Sketcher.Constraint("Vertical", 10))
sketch6.addConstraint(Sketcher.Constraint("Horizontal", 11))
sketch6.addConstraint(Sketcher.Constraint("Vertical", 12))
sketch6.addConstraint(Sketcher.Constraint("Horizontal", 13))
sketch6.addConstraint(Sketcher.Constraint("Vertical", 14))
sketch6.addConstraint(Sketcher.Constraint("Horizontal", 15))
sketch6.addConstraint(Sketcher.Constraint("Vertical", 16))
sketch6.addConstraint(Sketcher.Constraint("Horizontal", 17))
sketch6.addConstraint(Sketcher.Constraint("Vertical", 18))
sketch6.addConstraint(Sketcher.Constraint("Horizontal", 19))
sketch6.addConstraint(Sketcher.Constraint("Vertical", 20))
sketch6.addConstraint(Sketcher.Constraint("Horizontal", 21))
sketch6.addConstraint(Sketcher.Constraint("Vertical", 22))
sketch6.addConstraint(Sketcher.Constraint("Horizontal", 23))
sketch6.addConstraint(Sketcher.Constraint("Horizontal", 1, 2, 4, 2))
sketch6.addConstraint(Sketcher.Constraint("Horizontal", 3, 2, 6, 2))
sketch6.addConstraint(Sketcher.Constraint("Horizontal", 5, 2, 8, 2))
sketch6.addConstraint(Sketcher.Constraint("Horizontal", 7, 2, 10, 2))
sketch6.addConstraint(Sketcher.Constraint("Horizontal", 9, 2, 12, 2))
sketch6.addConstraint(Sketcher.Constraint("Horizontal", 11, 2, 14, 2))
sketch6.addConstraint(Sketcher.Constraint("Horizontal", 13, 2, 16, 2))
sketch6.addConstraint(Sketcher.Constraint("Horizontal", 15, 2, 18, 2))
sketch6.addConstraint(Sketcher.Constraint("Horizontal", 17, 2, 20, 2))
sketch6.addConstraint(Sketcher.Constraint("Horizontal", 19, 2, 22, 2))
sketch6.addConstraint(Sketcher.Constraint("Equal", 3, 5))
sketch6.addConstraint(Sketcher.Constraint("Equal", 7, 9))
sketch6.addConstraint(Sketcher.Constraint("Equal", 11, 13))
sketch6.addConstraint(Sketcher.Constraint("Equal", 15, 17))
sketch6.addConstraint(Sketcher.Constraint("Equal", 19, 21))
sketch6.addConstraint(Sketcher.Constraint("DistanceX", 1, 1, 1, 2, Q("2 mm")))
sketch6.addConstraint(Sketcher.Constraint("DistanceY", 0, 2, 0, 1, Q("6.6 mm")))
sketch6.addConstraint(Sketcher.Constraint("DistanceX", -1, 1, 0, 2, Q("10 mm")))
sketch6.addConstraint(Sketcher.Constraint("DistanceX", -1, 1, 4, 2, Q("14 mm")))
sketch6.addConstraint(Sketcher.Constraint("DistanceX", -1, 1, 8, 2, Q("18 mm")))
sketch6.addConstraint(Sketcher.Constraint("DistanceX", -1, 1, 12, 2, Q("30 mm")))
sketch6.addConstraint(Sketcher.Constraint("DistanceX", -1, 1, 16, 2, Q("26 mm")))
sketch6.addConstraint(Sketcher.Constraint("DistanceX", -1, 1, 20, 2, Q("22 mm")))
sketch6.addConstraint(Sketcher.Constraint("DistanceY", 0, 2, -1, 1, Q("8.3 mm")))
pocket5 = doc.addObject("PartDesign::Pocket", "Pocket004")
body.addObject(pocket5)
pocket5.Profile = sketch6
pocket5.Length = 6

doc.recompute()
